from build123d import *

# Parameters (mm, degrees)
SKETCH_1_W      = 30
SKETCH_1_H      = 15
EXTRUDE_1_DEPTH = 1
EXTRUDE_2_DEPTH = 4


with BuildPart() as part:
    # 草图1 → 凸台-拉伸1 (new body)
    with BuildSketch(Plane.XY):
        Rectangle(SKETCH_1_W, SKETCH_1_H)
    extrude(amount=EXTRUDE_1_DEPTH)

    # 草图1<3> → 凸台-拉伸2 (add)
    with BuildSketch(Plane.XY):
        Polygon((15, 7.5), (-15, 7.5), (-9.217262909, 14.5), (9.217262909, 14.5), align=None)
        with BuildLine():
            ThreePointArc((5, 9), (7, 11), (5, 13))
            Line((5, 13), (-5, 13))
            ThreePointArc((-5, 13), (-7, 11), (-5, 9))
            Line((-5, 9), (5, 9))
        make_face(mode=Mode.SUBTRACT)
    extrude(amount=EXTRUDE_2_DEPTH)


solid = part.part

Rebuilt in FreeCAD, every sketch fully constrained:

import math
import FreeCAD as App
import Part
import Sketcher
from FreeCAD import Vector

doc = App.newDocument("Part")
body = doc.addObject("PartDesign::Body", "Body")

sketch1 = body.newObject("Sketcher::SketchObject", "Sketch")
sketch1.AttachmentSupport = (doc.getObject("XY_Plane"), [""])
sketch1.MapMode = "FlatFace"
sketch1.addGeometry([
    Part.LineSegment(Vector(-15, 8, 0), Vector(-15, -8, 0)),
    Part.LineSegment(Vector(-15, -8, 0), Vector(15, -8, 0)),
    Part.LineSegment(Vector(15, -8, 0), Vector(15, 8, 0)),
    Part.LineSegment(Vector(15, 8, 0), Vector(-15, 8, 0)),
], False)
sketch1.addConstraint([
    Sketcher.Constraint("Coincident", 0, 2, 1, 1),
    Sketcher.Constraint("Coincident", 1, 2, 2, 1),
    Sketcher.Constraint("Coincident", 2, 2, 3, 1),
    Sketcher.Constraint("Coincident", 3, 2, 0, 1),
    Sketcher.Constraint("Vertical", 0),
    Sketcher.Constraint("Horizontal", 1),
    Sketcher.Constraint("Vertical", 2),
    Sketcher.Constraint("Horizontal", 3),
    Sketcher.Constraint("Symmetric", 0, 2, 2, 2, -1, 1),
    Sketcher.Constraint("DistanceX", 1, 1, 1, 2, 30.0),
    Sketcher.Constraint("DistanceY", 0, 2, 0, 1, 15.0),
])
pad1 = body.newObject("PartDesign::Pad", "Pad")
pad1.Profile = sketch1
pad1.Length = 1

sketch2 = body.newObject("Sketcher::SketchObject", "Sketch001")
sketch2.AttachmentSupport = (doc.getObject("XY_Plane"), [""])
sketch2.MapMode = "FlatFace"
sketch2.addGeometry([
    Part.LineSegment(Vector(-15, 7.5, 0), Vector(15, 7.5, 0)),
    Part.LineSegment(Vector(15, 7.5, 0), Vector(9.2, 14.5, 0)),
    Part.LineSegment(Vector(9.2, 14.5, 0), Vector(-9.2, 14.5, 0)),
    Part.LineSegment(Vector(-9.2, 14.5, 0), Vector(-15, 7.5, 0)),
    Part.LineSegment(Vector(5, 9, 0), Vector(-5, 9, 0)),
    Part.ArcOfCircle(Part.Circle(Vector(-5, 11, 0), Vector(0, 0, 1), 2), math.radians(90), math.radians(270)),
    Part.LineSegment(Vector(-5, 13, 0), Vector(5, 13, 0)),
    Part.ArcOfCircle(Part.Circle(Vector(5, 11, 0), Vector(0, 0, 1), 2), math.radians(-90), math.radians(90)),
], False)
sketch2.addConstraint([
    Sketcher.Constraint("Coincident", 0, 2, 1, 1),
    Sketcher.Constraint("Coincident", 1, 2, 2, 1),
    Sketcher.Constraint("Coincident", 2, 2, 3, 1),
    Sketcher.Constraint("Coincident", 3, 2, 0, 1),
    Sketcher.Constraint("Tangent", 4, 2, 5, 2),
    Sketcher.Constraint("Tangent", 5, 1, 6, 1),
    Sketcher.Constraint("Tangent", 6, 2, 7, 2),
    Sketcher.Constraint("Tangent", 7, 1, 4, 1),
    Sketcher.Constraint("Horizontal", 0),
    Sketcher.Constraint("Horizontal", 2),
    Sketcher.Constraint("Horizontal", 4),
    Sketcher.Constraint("Horizontal", 6),
    Sketcher.Constraint("Equal", 1, 3),
    Sketcher.Constraint("Radius", 5, 2.0),
    Sketcher.Constraint("DistanceX", 0, 1, 0, 2, 30.0),
    Sketcher.Constraint("DistanceX", 4, 2, 4, 1, 10.0),
    Sketcher.Constraint("DistanceX", 5, 3, -1, 1, 5.0),
    Sketcher.Constraint("DistanceY", -1, 1, 5, 3, 11.0),
    Sketcher.Constraint("DistanceX", -1, 1, 0, 2, 15.0),
    Sketcher.Constraint("DistanceY", 0, 2, 1, 2, 7.0),
    Sketcher.Constraint("DistanceY", -1, 1, 0, 2, 7.5),
    Sketcher.Constraint("Distance", 1, 9.07965),
])
pad2 = body.newObject("PartDesign::Pad", "Pad001")
pad2.Profile = sketch2
pad2.Length = 4

doc.recompute()
